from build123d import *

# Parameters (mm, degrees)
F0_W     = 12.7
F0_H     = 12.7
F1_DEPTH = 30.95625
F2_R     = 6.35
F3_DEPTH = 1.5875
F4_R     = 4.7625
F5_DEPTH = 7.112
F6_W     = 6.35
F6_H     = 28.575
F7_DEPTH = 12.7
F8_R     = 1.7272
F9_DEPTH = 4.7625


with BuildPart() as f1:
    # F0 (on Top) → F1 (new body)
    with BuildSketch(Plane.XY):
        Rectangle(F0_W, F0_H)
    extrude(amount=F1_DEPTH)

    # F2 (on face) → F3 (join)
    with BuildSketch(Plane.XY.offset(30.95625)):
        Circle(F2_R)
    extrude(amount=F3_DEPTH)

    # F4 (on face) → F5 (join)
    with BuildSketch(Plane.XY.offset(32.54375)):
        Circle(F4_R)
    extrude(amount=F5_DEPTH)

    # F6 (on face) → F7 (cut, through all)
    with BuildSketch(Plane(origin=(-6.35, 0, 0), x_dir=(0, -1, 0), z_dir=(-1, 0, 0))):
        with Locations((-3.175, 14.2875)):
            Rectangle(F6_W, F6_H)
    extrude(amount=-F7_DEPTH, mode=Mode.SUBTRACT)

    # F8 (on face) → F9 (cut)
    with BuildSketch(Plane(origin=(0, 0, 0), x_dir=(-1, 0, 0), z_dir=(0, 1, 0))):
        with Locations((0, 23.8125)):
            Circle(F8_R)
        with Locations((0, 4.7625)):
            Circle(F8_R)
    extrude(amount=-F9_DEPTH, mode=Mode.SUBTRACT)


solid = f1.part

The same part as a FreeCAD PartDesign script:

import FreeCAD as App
import Part
import Sketcher
Q = App.Units.Quantity

doc = App.newDocument("Part")
body = doc.addObject("PartDesign::Body", "Body")

sketch1 = body.newObject("Sketcher::SketchObject", "Sketch")
sketch1.AttachmentSupport = (doc.getObject("XY_Plane"), [""])
sketch1.MapMode = "FlatFace"
sketch1.addGeometry(Part.LineSegment(App.Vector(-6.35, 6.35, 0), App.Vector(-6.35, -6.35, 0)), False)
sketch1.addGeometry(Part.LineSegment(App.Vector(-6.35, -6.35, 0), App.Vector(6.35, -6.35, 0)), False)
sketch1.addGeometry(Part.LineSegment(App.Vector(6.35, -6.35, 0), App.Vector(6.35, 6.35, 0)), False)
sketch1.addGeometry(Part.LineSegment(App.Vector(6.35, 6.35, 0), App.Vector(-6.35, 6.35, 0)), False)
sketch1.addConstraint(Sketcher.Constraint("Coincident", 0, 2, 1, 1))
sketch1.addConstraint(Sketcher.Constraint("Coincident", 1, 2, 2, 1))
sketch1.addConstraint(Sketcher.Constraint("Coincident", 2, 2, 3, 1))
sketch1.addConstraint(Sketcher.Constraint("Coincident", 3, 2, 0, 1))
sketch1.addConstraint(Sketcher.Constraint("Vertical", 0))
sketch1.addConstraint(Sketcher.Constraint("Horizontal", 1))
sketch1.addConstraint(Sketcher.Constraint("Vertical", 2))
sketch1.addConstraint(Sketcher.Constraint("Horizontal", 3))
sketch1.addConstraint(Sketcher.Constraint("Symmetric", 0, 2, 2, 2, -1, 1))
sketch1.addConstraint(Sketcher.Constraint("Equal", 3, 0))
sketch1.addConstraint(Sketcher.Constraint("DistanceX", 1, 1, 1, 2, Q("0.5 in")))
pad1 = body.newObject("PartDesign::Pad", "Pad")
pad1.Profile = sketch1
pad1.Length = Q("1.21875 in")

sketch2 = body.newObject("Sketcher::SketchObject", "Sketch001")
sketch2.AttachmentSupport = (doc.getObject("XY_Plane"), [""])
sketch2.MapMode = "FlatFace"
sketch2.AttachmentOffset = App.Placement(App.Vector(0, 0, 1.21875 * 25.4), App.Rotation())
sketch2.addGeometry(Part.Circle(App.Vector(0, 0, 0), App.Vector(0, 0, 1), 6.35), False)
sketch2.addConstraint(Sketcher.Constraint("Coincident", 0, 3, -1, 1))
sketch2.addConstraint(Sketcher.Constraint("Diameter", 0, Q("0.5 in")))
pad2 = body.newObject("PartDesign::Pad", "Pad001")
pad2.Profile = sketch2
pad2.Length = Q("0.0625 in")

sketch3 = body.newObject("Sketcher::SketchObject", "Sketch002")
sketch3.AttachmentSupport = (doc.getObject("XY_Plane"), [""])
sketch3.MapMode = "FlatFace"
sketch3.AttachmentOffset = App.Placement(App.Vector(0, 0, 1.28125 * 25.4), App.Rotation())
sketch3.addGeometry(Part.Circle(App.Vector(0, 0, 0), App.Vector(0, 0, 1), 4.7625), False)
sketch3.addConstraint(Sketcher.Constraint("Coincident", 0, 3, -1, 1))
sketch3.addConstraint(Sketcher.Constraint("Diameter", 0, Q("0.375 in")))
pad3 = body.newObject("PartDesign::Pad", "Pad002")
pad3.Profile = sketch3
pad3.Length = Q("0.28 in")

sketch4 = body.newObject("Sketcher::SketchObject", "Sketch003")
sketch4.AttachmentSupport = (doc.getObject("YZ_Plane"), [""])
sketch4.MapMode = "FlatFace"
sketch4.AttachmentOffset = App.Placement(App.Vector(0, 0, -0.25 * 25.4), App.Rotation())
sketch4.addGeometry(Part.LineSegment(App.Vector(6.35, 28.575, 0), App.Vector(6.35, 0, 0)), False)
sketch4.addGeometry(Part.LineSegment(App.Vector(6.35, 0, 0), App.Vector(0, 0, 0)), False)
sketch4.addGeometry(Part.LineSegment(App.Vector(0, 0, 0), App.Vector(0, 28.575, 0)), False)
sketch4.addGeometry(Part.LineSegment(App.Vector(0, 28.575, 0), App.Vector(6.35, 28.575, 0)), False)
sketch4.addConstraint(Sketcher.Constraint("Coincident", 0, 2, 1, 1))
sketch4.addConstraint(Sketcher.Constraint("Coincident", 1, 2, 2, 1))
sketch4.addConstraint(Sketcher.Constraint("Coincident", 2, 2, 3, 1))
sketch4.addConstraint(Sketcher.Constraint("Coincident", 3, 2, 0, 1))
sketch4.addConstraint(Sketcher.Constraint("Vertical", 0))
sketch4.addConstraint(Sketcher.Constraint("Horizontal", 1))
sketch4.addConstraint(Sketcher.Constraint("Vertical", 2))
sketch4.addConstraint(Sketcher.Constraint("Horizontal", 3))
sketch4.addConstraint(Sketcher.Constraint("Coincident", 1, 2, -1, 1))
sketch4.addConstraint(Sketcher.Constraint("DistanceX", 1, 2, 1, 1, Q("0.25 in")))
sketch4.addConstraint(Sketcher.Constraint("DistanceY", 0, 2, 0, 1, Q("1.125 in")))
pocket1 = body.newObject("PartDesign::Pocket", "Pocket")
pocket1.Profile = sketch4
pocket1.Type = "ThroughAll"
pocket1.Reversed = True

sketch5 = body.newObject("Sketcher::SketchObject", "Sketch004")
sketch5.AttachmentSupport = (doc.getObject("XZ_Plane"), [""])
sketch5.MapMode = "FlatFace"
sketch5.addGeometry(Part.Circle(App.Vector(0, 23.8125, 0), App.Vector(0, 0, 1), 1.7272), False)
sketch5.addGeometry(Part.Circle(App.Vector(0, 4.7625, 0), App.Vector(0, 0, 1), 1.7272), False)
sketch5.addConstraint(Sketcher.Constraint("Equal", 0, 1))
sketch5.addConstraint(Sketcher.Constraint("PointOnObject", 0, 3, -2))
sketch5.addConstraint(Sketcher.Constraint("PointOnObject", 1, 3, -2))
sketch5.addConstraint(Sketcher.Constraint("Diameter", 0, Q("0.136 in")))
sketch5.addConstraint(Sketcher.Constraint("DistanceY", 1, 3, 0, 3, Q("0.75 in")))
sketch5.addConstraint(Sketcher.Constraint("DistanceY", -1, 1, 0, 3, Q("0.9375 in")))
pocket2 = body.newObject("PartDesign::Pocket", "Pocket001")
pocket2.Profile = sketch5
pocket2.Length = Q("0.1875 in")
pocket2.Reversed = True

doc.recompute()
